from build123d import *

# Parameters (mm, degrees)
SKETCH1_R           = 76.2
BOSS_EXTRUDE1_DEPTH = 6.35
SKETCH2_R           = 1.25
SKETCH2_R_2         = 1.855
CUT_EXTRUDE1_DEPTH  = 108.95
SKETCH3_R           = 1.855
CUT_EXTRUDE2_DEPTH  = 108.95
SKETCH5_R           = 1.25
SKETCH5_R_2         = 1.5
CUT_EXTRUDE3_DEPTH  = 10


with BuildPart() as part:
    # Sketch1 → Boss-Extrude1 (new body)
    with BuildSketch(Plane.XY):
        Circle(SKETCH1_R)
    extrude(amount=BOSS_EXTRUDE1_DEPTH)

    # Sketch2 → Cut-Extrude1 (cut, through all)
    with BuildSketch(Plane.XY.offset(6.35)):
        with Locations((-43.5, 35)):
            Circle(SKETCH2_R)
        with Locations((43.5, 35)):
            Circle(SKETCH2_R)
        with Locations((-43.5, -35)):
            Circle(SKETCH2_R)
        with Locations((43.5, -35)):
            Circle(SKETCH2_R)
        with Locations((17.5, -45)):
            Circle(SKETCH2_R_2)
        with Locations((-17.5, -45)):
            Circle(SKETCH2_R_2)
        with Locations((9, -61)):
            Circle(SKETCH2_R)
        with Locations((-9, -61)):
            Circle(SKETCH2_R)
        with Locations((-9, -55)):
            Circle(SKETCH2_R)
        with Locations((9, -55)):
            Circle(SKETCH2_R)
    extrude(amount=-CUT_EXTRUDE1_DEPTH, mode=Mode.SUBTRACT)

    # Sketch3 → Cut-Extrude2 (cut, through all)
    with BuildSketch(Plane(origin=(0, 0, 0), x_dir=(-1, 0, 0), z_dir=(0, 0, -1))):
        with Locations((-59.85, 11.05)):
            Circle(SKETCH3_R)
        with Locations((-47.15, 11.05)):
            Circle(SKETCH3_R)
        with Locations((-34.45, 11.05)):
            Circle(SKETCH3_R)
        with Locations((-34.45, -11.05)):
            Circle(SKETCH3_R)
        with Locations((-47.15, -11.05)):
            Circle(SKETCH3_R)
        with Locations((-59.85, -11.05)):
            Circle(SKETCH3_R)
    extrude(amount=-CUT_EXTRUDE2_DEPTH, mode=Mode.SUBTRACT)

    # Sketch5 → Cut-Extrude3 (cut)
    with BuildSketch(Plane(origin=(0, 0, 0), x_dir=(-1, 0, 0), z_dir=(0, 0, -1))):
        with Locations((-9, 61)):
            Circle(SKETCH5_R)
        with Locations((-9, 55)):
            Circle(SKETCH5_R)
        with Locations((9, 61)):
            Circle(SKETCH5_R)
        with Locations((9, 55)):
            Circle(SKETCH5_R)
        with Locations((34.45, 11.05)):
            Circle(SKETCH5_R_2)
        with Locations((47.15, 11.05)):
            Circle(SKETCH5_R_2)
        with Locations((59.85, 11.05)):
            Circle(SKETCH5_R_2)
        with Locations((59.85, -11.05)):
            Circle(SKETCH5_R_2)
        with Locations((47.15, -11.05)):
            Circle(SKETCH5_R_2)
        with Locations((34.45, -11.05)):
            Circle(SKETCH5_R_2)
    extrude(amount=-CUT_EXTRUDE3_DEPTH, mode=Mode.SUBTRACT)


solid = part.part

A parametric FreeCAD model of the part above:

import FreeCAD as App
import Part
import Sketcher

V = App.Vector

doc = App.newDocument("Part")
body = doc.addObject("PartDesign::Body", "Body")

sketch1 = body.newObject("Sketcher::SketchObject", "Sketch")
sketch1.AttachmentSupport = (doc.getObject("XY_Plane"), [""])
sketch1.MapMode = "FlatFace"
sketch1.addGeometry(Part.Circle(V(0, 0, 0), V(0, 0, 1), 76), False)
sketch1.addConstraint(Sketcher.Constraint("Coincident", 0, 3, -1, 1))
sketch1.addConstraint(Sketcher.Constraint("Diameter", 0, 152.4))
pad1 = body.newObject("PartDesign::Pad", "Pad")
pad1.Profile = sketch1
pad1.Length = 6.35

sketch2 = body.newObject("Sketcher::SketchObject", "Sketch001")
sketch2.AttachmentSupport = (doc.getObject("XY_Plane"), [""])
sketch2.MapMode = "FlatFace"
sketch2.AttachmentOffset = App.Placement(V(0, 0, 6.35), App.Rotation())
sketch2.addGeometry(Part.Circle(V(-43.5, 35, 0), V(0, 0, 1), 1.2), False)
sketch2.addGeometry(Part.Circle(V(43.5, 35, 0), V(0, 0, 1), 1.2), False)
sketch2.addGeometry(Part.Circle(V(-43.5, -35, 0), V(0, 0, 1), 1.2), False)
sketch2.addGeometry(Part.Circle(V(43.5, -35, 0), V(0, 0, 1), 1.2), False)
sketch2.addGeometry(Part.Circle(V(17.5, -45, 0), V(0, 0, 1), 1.9), False)
sketch2.addGeometry(Part.Circle(V(-17.5, -45, 0), V(0, 0, 1), 1.9), False)
sketch2.addGeometry(Part.Circle(V(9, -61, 0), V(0, 0, 1), 1.2), False)
sketch2.addGeometry(Part.Circle(V(-9, -61, 0), V(0, 0, 1), 1.2), False)
sketch2.addGeometry(Part.Circle(V(-9, -55, 0), V(0, 0, 1), 1.2), False)
sketch2.addGeometry(Part.Circle(V(9, -55, 0), V(0, 0, 1), 1.2), False)
sketch2.addConstraint(Sketcher.Constraint("Equal", 0, 1))
sketch2.addConstraint(Sketcher.Constraint("Equal", 1, 2))
sketch2.addConstraint(Sketcher.Constraint("Equal", 2, 3))
sketch2.addConstraint(Sketcher.Constraint("Equal", 4, 5))
sketch2.addConstraint(Sketcher.Constraint("Equal", 3, 6))
sketch2.addConstraint(Sketcher.Constraint("Equal", 6, 7))
sketch2.addConstraint(Sketcher.Constraint("Equal", 7, 8))
sketch2.addConstraint(Sketcher.Constraint("Equal", 8, 9))
sketch2.addConstraint(Sketcher.Constraint("Symmetric", 1, 3, 2, 3, -1, 1))
sketch2.addConstraint(Sketcher.Constraint("Symmetric", 0, 3, 3, 3, -1, 1))
sketch2.addConstraint(Sketcher.Constraint("Symmetric", 0, 3, 1, 3, -2))
sketch2.addConstraint(Sketcher.Constraint("Symmetric", 4, 3, 5, 3, -2))
sketch2.addConstraint(Sketcher.Constraint("Symmetric", 6, 3, 7, 3, -2))
sketch2.addConstraint(Sketcher.Constraint("Symmetric", 8, 3, 9, 3, -2))
sketch2.addConstraint(Sketcher.Constraint("Vertical", 7, 3, 8, 3))
sketch2.addConstraint(Sketcher.Constraint("Diameter", 0, 2.5))
sketch2.addConstraint(Sketcher.Constraint("Diameter", 4, 3.71))
sketch2.addConstraint(Sketcher.Constraint("DistanceY", -1, 1, 0, 3, 35.0))
sketch2.addConstraint(Sketcher.Constraint("DistanceY", 4, 3, -1, 1, 45.0))
sketch2.addConstraint(Sketcher.Constraint("DistanceX", -1, 1, 6, 3, 9.0))
sketch2.addConstraint(Sketcher.Constraint("DistanceY", 6, 3, -1, 1, 61.0))
sketch2.addConstraint(Sketcher.Constraint("DistanceY", 8, 3, -1, 1, 55.0))
sketch2.addConstraint(Sketcher.Constraint("DistanceX", 0, 3, 1, 3, 87.0))
sketch2.addConstraint(Sketcher.Constraint("DistanceX", 4, 3, 3, 3, 26.0))
pocket1 = body.newObject("PartDesign::Pocket", "Pocket")
pocket1.Profile = sketch2
pocket1.Type = "ThroughAll"

sketch3 = body.newObject("Sketcher::SketchObject", "Sketch002")
sketch3.AttachmentSupport = (doc.getObject("XY_Plane"), [""])
sketch3.MapMode = "FlatFace"
sketch3.addGeometry(Part.Circle(V(59.9, 11.1, 0), V(0, 0, 1), 1.9), False)
sketch3.addGeometry(Part.Circle(V(47.1, 11.1, 0), V(0, 0, 1), 1.9), False)
sketch3.addGeometry(Part.Circle(V(34.5, 11.1, 0), V(0, 0, 1), 1.9), False)
sketch3.addGeometry(Part.Circle(V(34.5, -11.1, 0), V(0, 0, 1), 1.9), False)
sketch3.addGeometry(Part.Circle(V(47.1, -11.1, 0), V(0, 0, 1), 1.9), False)
sketch3.addGeometry(Part.Circle(V(59.9, -11.1, 0), V(0, 0, 1), 1.9), False)
sketch3.addConstraint(Sketcher.Constraint("Equal", 0, 1))
sketch3.addConstraint(Sketcher.Constraint("Equal", 1, 2))
sketch3.addConstraint(Sketcher.Constraint("Equal", 2, 3))
sketch3.addConstraint(Sketcher.Constraint("Equal", 3, 4))
sketch3.addConstraint(Sketcher.Constraint("Equal", 4, 5))
sketch3.addConstraint(Sketcher.Constraint("Symmetric", 2, 3, 3, 3, -1))
sketch3.addConstraint(Sketcher.Constraint("Symmetric", 1, 3, 4, 3, -1))
sketch3.addConstraint(Sketcher.Constraint("Symmetric", 0, 3, 5, 3, -1))
sketch3.addConstraint(Sketcher.Constraint("Horizontal", 0, 3, 1, 3))
sketch3.addConstraint(Sketcher.Constraint("Horizontal", 1, 3, 2, 3))
sketch3.addConstraint(Sketcher.Constraint("Diameter", 0, 3.71))
sketch3.addConstraint(Sketcher.Constraint("DistanceX", 1, 3, 0, 3, 12.7))
sketch3.addConstraint(Sketcher.Constraint("DistanceX", 2, 3, 1, 3, 12.7))
sketch3.addConstraint(Sketcher.Constraint("DistanceY", 3, 3, 2, 3, 22.1))
sketch3.addConstraint(Sketcher.Constraint("DistanceX", -1, 1, 0, 3, 59.85))
pocket2 = body.newObject("PartDesign::Pocket", "Pocket001")
pocket2.Profile = sketch3
pocket2.Type = "ThroughAll"
pocket2.Reversed = True

sketch4 = body.newObject("Sketcher::SketchObject", "Sketch003")
sketch4.AttachmentSupport = (doc.getObject("XY_Plane"), [""])
sketch4.MapMode = "FlatFace"
sketch4.addGeometry(Part.Circle(V(9, 61, 0), V(0, 0, 1), 1.2), False)
sketch4.addGeometry(Part.Circle(V(9, 55, 0), V(0, 0, 1), 1.2), False)
sketch4.addGeometry(Part.Circle(V(-9, 61, 0), V(0, 0, 1), 1.2), False)
sketch4.addGeometry(Part.Circle(V(-9, 55, 0), V(0, 0, 1), 1.2), False)
sketch4.addGeometry(Part.Circle(V(-34.5, 11.1, 0), V(0, 0, 1), 1.5), False)
sketch4.addGeometry(Part.Circle(V(-47.1, 11.1, 0), V(0, 0, 1), 1.5), False)
sketch4.addGeometry(Part.Circle(V(-59.9, 11.1, 0), V(0, 0, 1), 1.5), False)
sketch4.addGeometry(Part.Circle(V(-59.9, -11.1, 0), V(0, 0, 1), 1.5), False)
sketch4.addGeometry(Part.Circle(V(-47.1, -11.1, 0), V(0, 0, 1), 1.5), False)
sketch4.addGeometry(Part.Circle(V(-34.5, -11.1, 0), V(0, 0, 1), 1.5), False)
sketch4.addConstraint(Sketcher.Constraint("Equal", 0, 1))
sketch4.addConstraint(Sketcher.Constraint("Equal", 1, 2))
sketch4.addConstraint(Sketcher.Constraint("Equal", 2, 3))
sketch4.addConstraint(Sketcher.Constraint("Equal", 4, 5))
sketch4.addConstraint(Sketcher.Constraint("Equal", 5, 6))
sketch4.addConstraint(Sketcher.Constraint("Equal", 6, 7))
sketch4.addConstraint(Sketcher.Constraint("Equal", 7, 8))
sketch4.addConstraint(Sketcher.Constraint("Equal", 8, 9))
sketch4.addConstraint(Sketcher.Constraint("Symmetric", 0, 3, 2, 3, -2))
sketch4.addConstraint(Sketcher.Constraint("Symmetric", 1, 3, 3, 3, -2))
sketch4.addConstraint(Sketcher.Constraint("Symmetric", 6, 3, 7, 3, -1))
sketch4.addConstraint(Sketcher.Constraint("Symmetric", 5, 3, 8, 3, -1))
sketch4.addConstraint(Sketcher.Constraint("Symmetric", 4, 3, 9, 3, -1))
sketch4.addConstraint(Sketcher.Constraint("Horizontal", 4, 3, 5, 3))
sketch4.addConstraint(Sketcher.Constraint("Horizontal", 5, 3, 6, 3))
sketch4.addConstraint(Sketcher.Constraint("Vertical", 0, 3, 1, 3))
sketch4.addConstraint(Sketcher.Constraint("Diameter", 4, 3.0))
sketch4.addConstraint(Sketcher.Constraint("Diameter", 0, 2.5))
sketch4.addConstraint(Sketcher.Constraint("DistanceX", -1, 1, 0, 3, 9.0))
sketch4.addConstraint(Sketcher.Constraint("DistanceY", -1, 1, 0, 3, 61.0))
sketch4.addConstraint(Sketcher.Constraint("DistanceY", -1, 1, 1, 3, 55.0))
sketch4.addConstraint(Sketcher.Constraint("DistanceX", 5, 3, 4, 3, 12.7))
sketch4.addConstraint(Sketcher.Constraint("DistanceX", 6, 3, 5, 3, 12.7))
sketch4.addConstraint(Sketcher.Constraint("DistanceY", 7, 3, 6, 3, 22.1))
sketch4.addConstraint(Sketcher.Constraint("DistanceX", 4, 3, -1, 1, 34.45))
pocket3 = body.newObject("PartDesign::Pocket", "Pocket002")
pocket3.Profile = sketch4
pocket3.Length = 10
pocket3.Reversed = True

doc.recompute()
